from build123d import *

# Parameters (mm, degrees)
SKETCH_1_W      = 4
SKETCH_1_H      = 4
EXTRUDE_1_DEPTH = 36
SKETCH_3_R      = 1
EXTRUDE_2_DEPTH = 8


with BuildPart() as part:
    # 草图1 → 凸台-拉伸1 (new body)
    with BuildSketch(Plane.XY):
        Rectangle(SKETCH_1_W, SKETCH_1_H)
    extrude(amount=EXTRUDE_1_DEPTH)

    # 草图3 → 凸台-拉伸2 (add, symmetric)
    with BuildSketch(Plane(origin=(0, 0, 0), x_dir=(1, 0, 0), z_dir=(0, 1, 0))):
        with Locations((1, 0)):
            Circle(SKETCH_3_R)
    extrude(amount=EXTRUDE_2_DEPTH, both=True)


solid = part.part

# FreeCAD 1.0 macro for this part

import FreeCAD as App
import Part
import Sketcher
from FreeCAD import Vector


def add_polygon(sketch, points):
    """Adds a closed chain of lines whose ends are joined by coincident constraints."""
    first, n = sketch.GeometryCount, len(points)
    for a, b in zip(points, points[1:] + points[:1]):
        sketch.addGeometry(Part.LineSegment(App.Vector(*a, 0), App.Vector(*b, 0)), False)
    for i in range(n):
        sketch.addConstraint(Sketcher.Constraint("Coincident", first + i, 2, first + (i + 1) % n, 1))

doc = App.newDocument("Part")
body = doc.addObject("PartDesign::Body", "Body")

sketch1 = doc.addObject("Sketcher::SketchObject", "Sketch")
body.addObject(sketch1)
sketch1.AttachmentSupport = (doc.XY_Plane, [""])
sketch1.MapMode = "FlatFace"
add_polygon(sketch1, [(-2, 2), (-2, -2), (2, -2), (2, 2)])
sketch1.addConstraint([
    Sketcher.Constraint("Vertical", 0),
    Sketcher.Constraint("Horizontal", 1),
    Sketcher.Constraint("Vertical", 2),
    Sketcher.Constraint("Horizontal", 3),
    Sketcher.Constraint("Symmetric", 0, 2, 2, 2, -1, 1),
    Sketcher.Constraint("Equal", 3, 0),
    Sketcher.Constraint("DistanceX", 1, 1, 1, 2, 4.0),
])
pad1 = doc.addObject("PartDesign::Pad", "Pad")
body.addObject(pad1)
pad1.Profile = sketch1
pad1.Length = 36

sketch2 = doc.addObject("Sketcher::SketchObject", "Sketch001")
body.addObject(sketch2)
sketch2.AttachmentSupport = (doc.XZ_Plane, [""])
sketch2.MapMode = "FlatFace"
sketch2.addGeometry(Part.Circle(Vector(1, 0, 0), Vector(0, 0, 1), 1), False)
sketch2.addConstraint([
    Sketcher.Constraint("PointOnObject", 0, 3, -1),
    Sketcher.Constraint("Diameter", 0, 2.0),
    Sketcher.Constraint("DistanceX", -1, 1, 0, 3, 1.0),
])
pad2 = doc.addObject("PartDesign::Pad", "Pad001")
body.addObject(pad2)
pad2.Profile = sketch2
pad2.Length = 16
pad2.Midplane = True

doc.recompute()
